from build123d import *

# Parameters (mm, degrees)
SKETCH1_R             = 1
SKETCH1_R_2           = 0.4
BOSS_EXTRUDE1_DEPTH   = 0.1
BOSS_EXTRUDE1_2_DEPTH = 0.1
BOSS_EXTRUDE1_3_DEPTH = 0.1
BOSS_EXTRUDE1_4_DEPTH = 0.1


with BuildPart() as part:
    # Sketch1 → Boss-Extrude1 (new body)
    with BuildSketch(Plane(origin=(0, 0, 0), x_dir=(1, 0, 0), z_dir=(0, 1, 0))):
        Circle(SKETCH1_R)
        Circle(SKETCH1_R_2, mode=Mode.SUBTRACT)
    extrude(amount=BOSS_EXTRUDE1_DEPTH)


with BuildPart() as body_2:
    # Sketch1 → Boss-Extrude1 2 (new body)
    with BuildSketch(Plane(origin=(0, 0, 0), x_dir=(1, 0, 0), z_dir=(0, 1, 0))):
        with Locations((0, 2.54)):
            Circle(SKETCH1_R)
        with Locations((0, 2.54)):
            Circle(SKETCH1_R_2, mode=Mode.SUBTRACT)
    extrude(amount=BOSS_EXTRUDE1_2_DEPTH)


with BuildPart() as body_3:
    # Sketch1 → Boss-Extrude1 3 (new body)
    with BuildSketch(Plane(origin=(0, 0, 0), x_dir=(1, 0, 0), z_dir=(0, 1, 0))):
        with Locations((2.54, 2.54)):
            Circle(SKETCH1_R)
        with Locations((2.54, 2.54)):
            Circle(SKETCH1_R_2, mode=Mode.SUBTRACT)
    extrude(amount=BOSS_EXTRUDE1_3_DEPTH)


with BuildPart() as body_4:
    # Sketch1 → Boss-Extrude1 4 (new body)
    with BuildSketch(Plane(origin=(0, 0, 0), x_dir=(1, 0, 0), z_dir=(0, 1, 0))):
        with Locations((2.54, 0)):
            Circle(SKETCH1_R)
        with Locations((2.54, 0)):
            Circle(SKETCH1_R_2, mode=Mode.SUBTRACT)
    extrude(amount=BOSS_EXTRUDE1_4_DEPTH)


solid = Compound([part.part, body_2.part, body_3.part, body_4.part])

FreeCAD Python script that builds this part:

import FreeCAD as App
import Part
import Sketcher

V = App.Vector
Q = App.Units.Quantity

doc = App.newDocument("Part")
body = doc.addObject("PartDesign::Body", "Body")

# Sketch on XZ plane
sketch1 = body.newObject("Sketcher::SketchObject", "Sketch")
sketch1.AttachmentSupport = (doc.getObject("XZ_Plane"), [""])
sketch1.MapMode = "FlatFace"
sketch1.addGeometry([
    Part.Circle(V(0, 0, 0), V(0, 0, 1), 1),
    Part.Circle(V(0, 0, 0), V(0, 0, 1), 0.4),
], False)
sketch1.addConstraint([
    Sketcher.Constraint("Coincident", 0, 3, -1, 1),
    Sketcher.Constraint("Coincident", 1, 3, -1, 1),
    Sketcher.Constraint("Diameter", 0, Q("2 mm")),
    Sketcher.Constraint("Diameter", 1, Q("0.8 mm")),
])
pad1 = body.newObject("PartDesign::Pad", "Pad")
pad1.Profile = sketch1
pad1.Length = 0.1
pad1.Reversed = True
body2 = doc.addObject("PartDesign::Body", "Body001")

# Sketch on XZ plane
sketch2 = body2.newObject("Sketcher::SketchObject", "Sketch001")
sketch2.AttachmentSupport = (doc.getObject("XZ_Plane001"), [""])
sketch2.MapMode = "FlatFace"
sketch2.addGeometry([
    Part.Circle(V(0, -2.54, 0), V(0, 0, 1), 1),
    Part.Circle(V(0, -2.54, 0), V(0, 0, 1), 0.4),
], False)
sketch2.addConstraint([
    Sketcher.Constraint("Coincident", 1, 3, 0, 3),
    Sketcher.Constraint("PointOnObject", 0, 3, -2),
    Sketcher.Constraint("Diameter", 0, Q("2 mm")),
    Sketcher.Constraint("Diameter", 1, Q("0.8 mm")),
    Sketcher.Constraint("DistanceY", 0, 3, -1, 1, Q("2.54 mm")),
])
pad2 = body2.newObject("PartDesign::Pad", "Pad001")
pad2.Profile = sketch2
pad2.Length = 0.1
pad2.Reversed = True
body3 = doc.addObject("PartDesign::Body", "Body002")

# Sketch on XZ plane
sketch3 = body3.newObject("Sketcher::SketchObject", "Sketch002")
sketch3.AttachmentSupport = (doc.getObject("XZ_Plane002"), [""])
sketch3.MapMode = "FlatFace"
sketch3.addGeometry([
    Part.Circle(V(2.54, -2.54, 0), V(0, 0, 1), 1),
    Part.Circle(V(2.54, -2.54, 0), V(0, 0, 1), 0.4),
], False)
sketch3.addConstraint([
    Sketcher.Constraint("Coincident", 1, 3, 0, 3),
    Sketcher.Constraint("Diameter", 0, Q("2 mm")),
    Sketcher.Constraint("Diameter", 1, Q("0.8 mm")),
    Sketcher.Constraint("DistanceX", -1, 1, 0, 3, Q("2.54 mm")),
    Sketcher.Constraint("DistanceY", 0, 3, -1, 1, Q("2.54 mm")),
])
pad3 = body3.newObject("PartDesign::Pad", "Pad002")
pad3.Profile = sketch3
pad3.Length = 0.1
pad3.Reversed = True
body4 = doc.addObject("PartDesign::Body", "Body003")

# Sketch on XZ plane
sketch4 = body4.newObject("Sketcher::SketchObject", "Sketch003")
sketch4.AttachmentSupport = (doc.getObject("XZ_Plane003"), [""])
sketch4.MapMode = "FlatFace"
sketch4.addGeometry([
    Part.Circle(V(2.54, 0, 0), V(0, 0, 1), 1),
    Part.Circle(V(2.54, 0, 0), V(0, 0, 1), 0.4),
], False)
sketch4.addConstraint([
    Sketcher.Constraint("Coincident", 1, 3, 0, 3),
    Sketcher.Constraint("PointOnObject", 0, 3, -1),
    Sketcher.Constraint("Diameter", 0, Q("2 mm")),
    Sketcher.Constraint("Diameter", 1, Q("0.8 mm")),
    Sketcher.Constraint("DistanceX", -1, 1, 0, 3, Q("2.54 mm")),
])
pad4 = body4.newObject("PartDesign::Pad", "Pad003")
pad4.Profile = sketch4
pad4.Length = 0.1
pad4.Reversed = True

doc.recompute()
